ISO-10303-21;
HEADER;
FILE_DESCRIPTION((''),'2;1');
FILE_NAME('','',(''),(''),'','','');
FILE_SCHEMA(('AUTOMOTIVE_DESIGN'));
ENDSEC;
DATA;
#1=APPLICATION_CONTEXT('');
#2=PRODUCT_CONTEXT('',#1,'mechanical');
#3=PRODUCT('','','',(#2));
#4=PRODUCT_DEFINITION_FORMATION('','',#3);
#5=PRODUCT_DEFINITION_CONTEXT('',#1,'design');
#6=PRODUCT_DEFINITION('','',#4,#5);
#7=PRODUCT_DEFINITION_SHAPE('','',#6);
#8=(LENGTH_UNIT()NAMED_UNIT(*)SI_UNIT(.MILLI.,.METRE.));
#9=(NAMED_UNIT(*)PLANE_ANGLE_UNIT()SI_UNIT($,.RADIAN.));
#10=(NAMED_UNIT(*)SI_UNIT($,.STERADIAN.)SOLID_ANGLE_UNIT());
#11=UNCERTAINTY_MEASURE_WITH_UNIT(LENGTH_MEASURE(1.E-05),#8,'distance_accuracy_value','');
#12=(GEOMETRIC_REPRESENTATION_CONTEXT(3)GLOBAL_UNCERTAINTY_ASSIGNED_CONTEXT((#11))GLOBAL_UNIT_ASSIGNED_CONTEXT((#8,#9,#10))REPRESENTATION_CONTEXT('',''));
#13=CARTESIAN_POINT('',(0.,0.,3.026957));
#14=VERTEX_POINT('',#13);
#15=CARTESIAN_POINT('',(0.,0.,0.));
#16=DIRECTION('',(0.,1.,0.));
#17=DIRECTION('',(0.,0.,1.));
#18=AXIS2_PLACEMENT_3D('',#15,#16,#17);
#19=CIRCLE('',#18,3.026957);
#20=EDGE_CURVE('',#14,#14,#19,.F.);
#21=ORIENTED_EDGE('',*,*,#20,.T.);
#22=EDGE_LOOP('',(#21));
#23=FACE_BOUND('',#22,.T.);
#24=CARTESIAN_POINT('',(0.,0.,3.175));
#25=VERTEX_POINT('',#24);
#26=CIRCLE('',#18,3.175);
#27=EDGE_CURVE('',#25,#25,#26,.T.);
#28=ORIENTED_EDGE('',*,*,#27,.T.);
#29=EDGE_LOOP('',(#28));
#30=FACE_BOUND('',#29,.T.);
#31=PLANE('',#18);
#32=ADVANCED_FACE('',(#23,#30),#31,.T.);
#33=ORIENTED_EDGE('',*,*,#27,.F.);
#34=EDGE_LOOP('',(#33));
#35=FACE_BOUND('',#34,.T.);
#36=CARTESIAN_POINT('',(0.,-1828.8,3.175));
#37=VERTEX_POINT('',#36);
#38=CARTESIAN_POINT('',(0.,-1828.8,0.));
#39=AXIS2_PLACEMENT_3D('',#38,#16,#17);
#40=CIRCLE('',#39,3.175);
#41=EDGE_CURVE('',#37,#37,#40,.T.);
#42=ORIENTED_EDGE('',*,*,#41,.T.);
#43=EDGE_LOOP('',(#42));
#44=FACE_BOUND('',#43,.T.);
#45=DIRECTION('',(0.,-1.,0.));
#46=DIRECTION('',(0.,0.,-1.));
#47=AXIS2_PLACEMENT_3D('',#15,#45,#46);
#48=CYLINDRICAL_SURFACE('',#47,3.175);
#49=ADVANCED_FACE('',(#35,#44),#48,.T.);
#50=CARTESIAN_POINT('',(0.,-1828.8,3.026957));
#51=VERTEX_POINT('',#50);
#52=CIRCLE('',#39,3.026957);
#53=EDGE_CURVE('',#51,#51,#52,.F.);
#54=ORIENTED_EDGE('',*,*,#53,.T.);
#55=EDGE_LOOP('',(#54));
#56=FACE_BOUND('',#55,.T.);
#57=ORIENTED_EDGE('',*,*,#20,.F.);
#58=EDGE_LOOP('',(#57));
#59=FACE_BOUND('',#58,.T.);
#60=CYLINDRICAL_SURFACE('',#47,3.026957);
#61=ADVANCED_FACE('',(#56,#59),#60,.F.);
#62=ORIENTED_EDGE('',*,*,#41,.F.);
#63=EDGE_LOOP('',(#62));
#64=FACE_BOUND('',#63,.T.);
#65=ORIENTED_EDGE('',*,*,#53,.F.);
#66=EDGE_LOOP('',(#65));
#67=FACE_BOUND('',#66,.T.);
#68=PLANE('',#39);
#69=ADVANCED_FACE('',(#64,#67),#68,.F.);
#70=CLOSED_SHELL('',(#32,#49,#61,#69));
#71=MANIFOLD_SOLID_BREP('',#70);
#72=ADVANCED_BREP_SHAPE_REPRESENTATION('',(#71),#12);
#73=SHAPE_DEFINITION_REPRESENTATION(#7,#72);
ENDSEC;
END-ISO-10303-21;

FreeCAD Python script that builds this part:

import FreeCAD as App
import Part
import Sketcher
Q = App.Units.Quantity

doc = App.newDocument("Part")
body = doc.addObject("PartDesign::Body", "Body")

# Sketch on XZ plane
sketch1 = body.newObject("Sketcher::SketchObject", "Sketch")
sketch1.AttachmentSupport = (doc.getObject("XZ_Plane"), [""])
sketch1.MapMode = "FlatFace"
sketch1.addGeometry([
    Part.Circle(App.Vector(0, 0, 0), App.Vector(0, 0, 1), 3.175),
    Part.Circle(App.Vector(0, 0, 0), App.Vector(0, 0, 1), 3.026957),
], False)
sketch1.addConstraint([
    Sketcher.Constraint("Coincident", 0, 3, -1, 1),
    Sketcher.Constraint("Coincident", 1, 3, -1, 1),
    Sketcher.Constraint("Diameter", 0, Q("0.25 in")),
    Sketcher.Constraint("Diameter", 1, 6.053914),
])

# Sketch on XY plane
sketch2 = body.newObject("Sketcher::SketchObject", "Sketch001")
sketch2.AttachmentSupport = (doc.getObject("XY_Plane"), [""])
sketch2.MapMode = "FlatFace"
sketch2.addGeometry(Part.LineSegment(App.Vector(0, 0, 0), App.Vector(0, -1828.8, 0)), False)
sketch2.addConstraint([
    Sketcher.Constraint("Vertical", 0),
    Sketcher.Constraint("Coincident", 0, 1, -1, 1),
    Sketcher.Constraint("DistanceY", 0, 2, 0, 1, Q("72 in")),
])
doc.recompute()

additivepipe = body.newObject("PartDesign::AdditivePipe", "AdditivePipe")
additivepipe.Profile = sketch1
additivepipe.Spine = (sketch2, ["Edge1"])

doc.recompute()
